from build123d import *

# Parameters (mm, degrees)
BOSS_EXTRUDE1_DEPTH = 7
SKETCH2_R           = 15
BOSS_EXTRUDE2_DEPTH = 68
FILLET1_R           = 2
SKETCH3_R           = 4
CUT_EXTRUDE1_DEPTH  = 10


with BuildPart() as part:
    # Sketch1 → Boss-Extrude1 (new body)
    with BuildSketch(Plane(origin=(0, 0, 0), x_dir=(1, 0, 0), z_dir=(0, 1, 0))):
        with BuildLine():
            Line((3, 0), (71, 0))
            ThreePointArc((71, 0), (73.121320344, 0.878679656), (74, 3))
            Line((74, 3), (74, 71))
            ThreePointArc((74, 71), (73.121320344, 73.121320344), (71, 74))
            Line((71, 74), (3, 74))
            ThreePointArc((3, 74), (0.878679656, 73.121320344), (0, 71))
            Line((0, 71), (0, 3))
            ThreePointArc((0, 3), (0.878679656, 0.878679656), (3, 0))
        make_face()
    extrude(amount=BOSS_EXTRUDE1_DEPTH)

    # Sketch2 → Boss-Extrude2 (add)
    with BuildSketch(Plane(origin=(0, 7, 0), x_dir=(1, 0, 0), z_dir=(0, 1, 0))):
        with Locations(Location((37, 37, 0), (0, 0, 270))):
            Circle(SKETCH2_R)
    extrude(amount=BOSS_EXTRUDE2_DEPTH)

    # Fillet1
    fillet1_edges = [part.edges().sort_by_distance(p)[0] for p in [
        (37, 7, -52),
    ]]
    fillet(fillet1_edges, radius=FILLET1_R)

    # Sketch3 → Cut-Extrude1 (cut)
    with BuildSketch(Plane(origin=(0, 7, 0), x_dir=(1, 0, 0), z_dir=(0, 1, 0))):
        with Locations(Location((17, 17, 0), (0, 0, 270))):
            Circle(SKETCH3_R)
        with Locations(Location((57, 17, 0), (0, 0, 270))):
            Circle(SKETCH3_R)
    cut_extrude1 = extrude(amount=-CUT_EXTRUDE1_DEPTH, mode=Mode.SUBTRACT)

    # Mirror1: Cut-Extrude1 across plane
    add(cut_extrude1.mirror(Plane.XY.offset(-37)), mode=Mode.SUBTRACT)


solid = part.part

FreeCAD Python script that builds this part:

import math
import FreeCAD as App
import Part
import Sketcher

V = App.Vector
Q = App.Units.Quantity


def edges_at(feature, points):
    """Names of the edges that pass closest to the given points."""
    edges = feature.Shape.Edges
    near = lambda p: min(range(len(edges)), key=lambda i: edges[i].distToShape(Part.Vertex(*p))[0])
    return sorted({f"Edge{near(p) + 1}" for p in points})

doc = App.newDocument("Part")
params = doc.addObject("Spreadsheet::Sheet", "Params")
for row, (alias, value) in enumerate([
    ("sketch1_radius", "3 mm"),
    ("sketch1_width", "68 mm"),
    ("pad1_length", "7 mm"),
    ("sketch2_diameter", "30 mm"),
    ("pad2_length", "68 mm"),
    ("fillet_radius", "2 mm"),
    ("sketch3_diameter", "8 mm"),
    ("pocket1_length", "10 mm"),
], start=1):
    params.set(f"A{row}", alias)
    params.set(f"B{row}", "=" + value)
    params.setAlias(f"B{row}", alias)

body = doc.addObject("PartDesign::Body", "Body")

# Sketch on XZ plane
sketch1 = body.newObject("Sketcher::SketchObject", "Sketch")
sketch1.AttachmentSupport = (doc.getObject("XZ_Plane"), [""])
sketch1.MapMode = "FlatFace"
sketch1.addGeometry([
    Part.LineSegment(V(3, 0, 0), V(71, 0, 0)),  # 0
    Part.ArcOfCircle(Part.Circle(V(71, -3, 0), V(0, 0, 1), 3), math.radians(0), math.radians(90)),  # 1
    Part.LineSegment(V(74, -3, 0), V(74, -71, 0)),  # 2
    Part.ArcOfCircle(Part.Circle(V(71, -71, 0), V(0, 0, 1), 3), math.radians(-90), math.radians(0)),  # 3
    Part.LineSegment(V(71, -74, 0), V(3, -74, 0)),  # 4
    Part.ArcOfCircle(Part.Circle(V(3, -71, 0), V(0, 0, 1), 3), math.radians(180), math.radians(270)),  # 5
    Part.LineSegment(V(0, -71, 0), V(0, -3, 0)),  # 6
    Part.ArcOfCircle(Part.Circle(V(3, -3, 0), V(0, 0, 1), 3), math.radians(90), math.radians(180)),  # 7
], False)
sketch1.addConstraint([
    Sketcher.Constraint("Tangent", 0, 2, 1, 2),
    Sketcher.Constraint("Tangent", 1, 1, 2, 1),
    Sketcher.Constraint("Tangent", 2, 2, 3, 2),
    Sketcher.Constraint("Tangent", 3, 1, 4, 1),
    Sketcher.Constraint("Tangent", 4, 2, 5, 2),
    Sketcher.Constraint("Tangent", 5, 1, 6, 1),
    Sketcher.Constraint("Tangent", 6, 2, 7, 2),
    Sketcher.Constraint("Tangent", 7, 1, 0, 1),
    Sketcher.Constraint("Horizontal", 0),
    Sketcher.Constraint("Vertical", 2),
    Sketcher.Constraint("Horizontal", 4),
    Sketcher.Constraint("Vertical", 6),
    Sketcher.Constraint("Equal", 1, 3),
    Sketcher.Constraint("Equal", 3, 5),
    Sketcher.Constraint("Equal", 5, 7),
    Sketcher.Constraint("PointOnObject", 0, 2, -1),
    Sketcher.Constraint("PointOnObject", 5, 1, -2),
    Sketcher.Constraint("Equal", 4, 2),
    Sketcher.Constraint("Radius", 1, Q("3 mm")),
    Sketcher.Constraint("DistanceX", 0, 1, 0, 2, Q("68 mm")),
])
sketch1.setExpression("Constraints[18]", "Params.sketch1_radius")
sketch1.setExpression("Constraints[19]", "Params.sketch1_width")
pad1 = body.newObject("PartDesign::Pad", "Pad")
pad1.Profile = sketch1
pad1.setExpression("Length", "Params.pad1_length")
pad1.Reversed = True

# Sketch on XZ plane
sketch2 = body.newObject("Sketcher::SketchObject", "Sketch001")
sketch2.AttachmentSupport = (doc.getObject("XZ_Plane"), [""])
sketch2.MapMode = "FlatFace"
sketch2.AttachmentOffset = App.Placement(V(0, 0, -7), App.Rotation())
sketch2.addGeometry(Part.Circle(V(37, -37, 0), V(0, 0, 1), 15), False)
sketch2.addConstraint([
    Sketcher.Constraint("Diameter", 0, Q("30 mm")),
    Sketcher.Constraint("DistanceX", -1, 1, 0, 3, Q("37 mm")),
    Sketcher.Constraint("DistanceY", 0, 3, -1, 1, Q("37 mm")),
])
sketch2.setExpression("Constraints[0]", "Params.sketch2_diameter")
pad2 = body.newObject("PartDesign::Pad", "Pad001")
pad2.Profile = sketch2
pad2.setExpression("Length", "Params.pad2_length")
pad2.Reversed = True
doc.recompute()

fillet = body.newObject("PartDesign::Fillet", "Fillet")
fillet.Base = (pad2, edges_at(pad2, [(37, 7, -52)]))
fillet.setExpression("Radius", "Params.fillet_radius")

# Sketch on XZ plane
sketch3 = body.newObject("Sketcher::SketchObject", "Sketch002")
sketch3.AttachmentSupport = (doc.getObject("XZ_Plane"), [""])
sketch3.MapMode = "FlatFace"
sketch3.AttachmentOffset = App.Placement(V(0, 0, -7), App.Rotation())
sketch3.addGeometry([
    Part.Circle(V(17, -17, 0), V(0, 0, 1), 4),
    Part.Circle(V(57, -17, 0), V(0, 0, 1), 4),
], False)
sketch3.addConstraint([
    Sketcher.Constraint("Equal", 0, 1),
    Sketcher.Constraint("Horizontal", 0, 3, 1, 3),
    Sketcher.Constraint("Diameter", 0, Q("8 mm")),
    Sketcher.Constraint("DistanceX", -1, 1, 0, 3, Q("17 mm")),
    Sketcher.Constraint("DistanceY", 0, 3, -1, 1, Q("17 mm")),
    Sketcher.Constraint("DistanceX", -1, 1, 1, 3, Q("57 mm")),
])
sketch3.setExpression("Constraints[2]", "Params.sketch3_diameter")
pocket1 = body.newObject("PartDesign::Pocket", "Pocket")
pocket1.Profile = sketch3
pocket1.setExpression("Length", "Params.pocket1_length")
pocket1.Reversed = True
doc.recompute()

datumplane = body.newObject("PartDesign::Plane", "DatumPlane")
datumplane.AttachmentSupport = (doc.getObject("XY_Plane"), [""])
datumplane.MapMode = "FlatFace"
datumplane.AttachmentOffset = App.Placement(V(0, 0, -37), App.Rotation())
mirrored = body.newObject("PartDesign::Mirrored", "Mirrored")
mirrored.Originals = [pocket1]
mirrored.MirrorPlane = (datumplane, [""])
body.Tip = mirrored

doc.recompute()
